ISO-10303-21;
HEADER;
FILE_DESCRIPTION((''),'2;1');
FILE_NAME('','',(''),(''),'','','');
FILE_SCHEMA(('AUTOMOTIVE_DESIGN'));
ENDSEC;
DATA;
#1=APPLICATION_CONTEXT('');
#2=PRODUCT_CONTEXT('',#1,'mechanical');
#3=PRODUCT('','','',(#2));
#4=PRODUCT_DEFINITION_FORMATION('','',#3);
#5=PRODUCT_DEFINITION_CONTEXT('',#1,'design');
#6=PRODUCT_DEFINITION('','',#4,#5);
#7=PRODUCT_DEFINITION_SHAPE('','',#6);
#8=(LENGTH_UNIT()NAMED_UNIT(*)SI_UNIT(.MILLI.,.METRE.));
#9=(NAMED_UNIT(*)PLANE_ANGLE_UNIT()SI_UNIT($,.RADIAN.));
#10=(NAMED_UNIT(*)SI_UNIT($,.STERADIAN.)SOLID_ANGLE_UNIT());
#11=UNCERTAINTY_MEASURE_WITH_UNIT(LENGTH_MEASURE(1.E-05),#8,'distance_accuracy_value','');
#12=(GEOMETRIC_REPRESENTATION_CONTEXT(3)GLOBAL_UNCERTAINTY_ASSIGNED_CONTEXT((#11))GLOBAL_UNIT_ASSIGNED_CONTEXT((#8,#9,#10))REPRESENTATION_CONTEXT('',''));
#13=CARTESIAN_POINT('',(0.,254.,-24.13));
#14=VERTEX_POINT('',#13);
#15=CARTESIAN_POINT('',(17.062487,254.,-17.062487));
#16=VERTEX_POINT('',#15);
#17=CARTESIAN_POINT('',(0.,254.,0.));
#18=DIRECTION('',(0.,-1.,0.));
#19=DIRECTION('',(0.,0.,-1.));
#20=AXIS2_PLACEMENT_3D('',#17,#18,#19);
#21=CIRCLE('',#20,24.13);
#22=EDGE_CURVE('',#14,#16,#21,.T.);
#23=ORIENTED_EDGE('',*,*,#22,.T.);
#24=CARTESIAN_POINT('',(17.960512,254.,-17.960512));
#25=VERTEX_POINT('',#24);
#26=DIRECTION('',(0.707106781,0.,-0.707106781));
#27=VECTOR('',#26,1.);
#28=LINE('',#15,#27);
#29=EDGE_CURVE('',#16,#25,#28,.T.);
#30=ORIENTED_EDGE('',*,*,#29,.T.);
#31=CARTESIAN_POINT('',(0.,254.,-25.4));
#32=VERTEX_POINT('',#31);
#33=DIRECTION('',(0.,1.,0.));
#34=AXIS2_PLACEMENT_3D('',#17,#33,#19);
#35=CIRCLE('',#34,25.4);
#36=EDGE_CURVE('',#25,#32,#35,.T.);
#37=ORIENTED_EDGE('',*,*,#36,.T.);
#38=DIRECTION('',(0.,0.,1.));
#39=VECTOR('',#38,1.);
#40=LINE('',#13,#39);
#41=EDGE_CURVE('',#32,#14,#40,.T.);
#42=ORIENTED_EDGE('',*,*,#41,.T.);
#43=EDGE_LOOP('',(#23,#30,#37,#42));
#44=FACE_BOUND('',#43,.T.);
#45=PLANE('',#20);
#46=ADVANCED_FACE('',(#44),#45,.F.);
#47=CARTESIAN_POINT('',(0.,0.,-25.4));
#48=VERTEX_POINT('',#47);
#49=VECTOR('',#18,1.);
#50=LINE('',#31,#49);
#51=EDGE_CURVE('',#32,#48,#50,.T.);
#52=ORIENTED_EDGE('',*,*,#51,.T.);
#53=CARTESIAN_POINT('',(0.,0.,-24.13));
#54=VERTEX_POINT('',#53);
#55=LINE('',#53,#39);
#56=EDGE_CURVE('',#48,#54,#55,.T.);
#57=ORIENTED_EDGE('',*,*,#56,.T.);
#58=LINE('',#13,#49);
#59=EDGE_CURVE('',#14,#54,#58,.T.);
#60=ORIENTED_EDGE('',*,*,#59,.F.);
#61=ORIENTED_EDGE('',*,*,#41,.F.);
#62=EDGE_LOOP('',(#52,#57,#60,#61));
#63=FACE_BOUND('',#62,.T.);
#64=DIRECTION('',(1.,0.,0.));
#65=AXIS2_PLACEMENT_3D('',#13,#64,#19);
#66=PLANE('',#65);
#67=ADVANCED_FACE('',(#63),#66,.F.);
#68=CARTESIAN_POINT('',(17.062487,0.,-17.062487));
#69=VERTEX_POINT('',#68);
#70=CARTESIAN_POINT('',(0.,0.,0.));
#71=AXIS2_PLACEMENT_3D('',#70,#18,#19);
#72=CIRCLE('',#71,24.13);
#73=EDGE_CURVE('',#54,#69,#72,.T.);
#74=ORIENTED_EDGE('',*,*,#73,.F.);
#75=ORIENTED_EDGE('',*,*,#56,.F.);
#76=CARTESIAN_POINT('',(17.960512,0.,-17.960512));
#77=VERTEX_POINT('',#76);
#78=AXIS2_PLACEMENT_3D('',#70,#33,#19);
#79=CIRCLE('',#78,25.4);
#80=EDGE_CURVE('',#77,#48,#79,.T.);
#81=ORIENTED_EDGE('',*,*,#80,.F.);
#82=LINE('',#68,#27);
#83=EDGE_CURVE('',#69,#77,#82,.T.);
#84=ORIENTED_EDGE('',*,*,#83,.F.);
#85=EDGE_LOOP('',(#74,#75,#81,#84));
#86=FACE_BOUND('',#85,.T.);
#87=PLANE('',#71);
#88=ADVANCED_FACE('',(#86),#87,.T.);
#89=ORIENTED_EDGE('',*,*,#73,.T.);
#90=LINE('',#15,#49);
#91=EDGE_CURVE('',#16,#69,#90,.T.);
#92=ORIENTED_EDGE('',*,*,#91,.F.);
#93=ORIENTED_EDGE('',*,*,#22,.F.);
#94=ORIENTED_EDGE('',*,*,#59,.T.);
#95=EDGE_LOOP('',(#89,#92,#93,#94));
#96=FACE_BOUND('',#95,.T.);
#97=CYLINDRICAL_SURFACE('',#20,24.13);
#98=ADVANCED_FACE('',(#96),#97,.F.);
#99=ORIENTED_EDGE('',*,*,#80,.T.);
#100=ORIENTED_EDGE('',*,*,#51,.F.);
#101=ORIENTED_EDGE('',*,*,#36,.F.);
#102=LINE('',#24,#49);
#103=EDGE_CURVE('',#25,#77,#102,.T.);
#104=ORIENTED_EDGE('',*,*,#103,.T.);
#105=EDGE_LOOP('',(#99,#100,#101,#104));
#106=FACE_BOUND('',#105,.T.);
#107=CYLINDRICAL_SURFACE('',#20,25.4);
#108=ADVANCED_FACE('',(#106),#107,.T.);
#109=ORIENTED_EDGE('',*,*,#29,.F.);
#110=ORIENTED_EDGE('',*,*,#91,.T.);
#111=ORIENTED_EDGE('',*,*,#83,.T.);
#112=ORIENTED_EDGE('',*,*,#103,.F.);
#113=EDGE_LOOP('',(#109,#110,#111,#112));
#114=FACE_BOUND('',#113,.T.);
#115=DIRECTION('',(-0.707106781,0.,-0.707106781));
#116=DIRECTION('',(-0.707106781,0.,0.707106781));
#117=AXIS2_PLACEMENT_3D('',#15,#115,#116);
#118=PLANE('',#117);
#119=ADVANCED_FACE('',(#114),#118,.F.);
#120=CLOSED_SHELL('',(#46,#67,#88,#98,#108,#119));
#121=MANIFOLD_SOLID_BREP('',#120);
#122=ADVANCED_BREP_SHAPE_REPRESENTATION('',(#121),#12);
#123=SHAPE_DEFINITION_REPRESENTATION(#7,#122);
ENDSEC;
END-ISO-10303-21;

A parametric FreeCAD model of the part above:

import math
import FreeCAD as App
import Part
import Sketcher

V = App.Vector
Q = App.Units.Quantity

doc = App.newDocument("Part")
body = doc.addObject("PartDesign::Body", "Body")

# Sketch on XZ plane
sketch1 = body.newObject("Sketcher::SketchObject", "Sketch")
sketch1.AttachmentSupport = (doc.getObject("XZ_Plane"), [""])
sketch1.MapMode = "FlatFace"
sketch1.addGeometry(Part.LineSegment(V(0, -25.4, 0), V(0, -24.13, 0)), False)
sketch1.addGeometry(Part.ArcOfCircle(Part.Circle(V(0, 0, 0), V(0, 0, 1), 24.13), math.radians(-90), math.radians(-45)), False)
sketch1.addGeometry(Part.LineSegment(V(17.062487, -17.062487, 0), V(17.960512, -17.960512, 0)), False)
sketch1.addGeometry(Part.ArcOfCircle(Part.Circle(V(0, 0, 0), V(0, 0, 1), 25.4), math.radians(-90), math.radians(-45)), False)
sketch1.addConstraint(Sketcher.Constraint("Coincident", 0, 2, 1, 1))
sketch1.addConstraint(Sketcher.Constraint("Coincident", 1, 2, 2, 1))
sketch1.addConstraint(Sketcher.Constraint("Coincident", 2, 2, 3, 2))
sketch1.addConstraint(Sketcher.Constraint("Coincident", 3, 1, 0, 1))
sketch1.addConstraint(Sketcher.Constraint("Vertical", 0))
sketch1.addConstraint(Sketcher.Constraint("Coincident", 1, 3, -1, 1))
sketch1.addConstraint(Sketcher.Constraint("Coincident", 3, 3, -1, 1))
sketch1.addConstraint(Sketcher.Constraint("PointOnObject", 0, 2, -2))
sketch1.addConstraint(Sketcher.Constraint("Radius", 3, Q("1 in")))
sketch1.addConstraint(Sketcher.Constraint("Radius", 1, Q("0.95 in")))
sketch1.addConstraint(Sketcher.Constraint("Angle", 2, Q("-45 deg")))
sketch1.addConstraint(Sketcher.Constraint("DistanceX", -1, 1, 1, 2, Q("17.062487 mm")))
pad1 = body.newObject("PartDesign::Pad", "Pad")
pad1.Profile = sketch1
pad1.Length = Q("10 in")
pad1.Reversed = True

doc.recompute()
